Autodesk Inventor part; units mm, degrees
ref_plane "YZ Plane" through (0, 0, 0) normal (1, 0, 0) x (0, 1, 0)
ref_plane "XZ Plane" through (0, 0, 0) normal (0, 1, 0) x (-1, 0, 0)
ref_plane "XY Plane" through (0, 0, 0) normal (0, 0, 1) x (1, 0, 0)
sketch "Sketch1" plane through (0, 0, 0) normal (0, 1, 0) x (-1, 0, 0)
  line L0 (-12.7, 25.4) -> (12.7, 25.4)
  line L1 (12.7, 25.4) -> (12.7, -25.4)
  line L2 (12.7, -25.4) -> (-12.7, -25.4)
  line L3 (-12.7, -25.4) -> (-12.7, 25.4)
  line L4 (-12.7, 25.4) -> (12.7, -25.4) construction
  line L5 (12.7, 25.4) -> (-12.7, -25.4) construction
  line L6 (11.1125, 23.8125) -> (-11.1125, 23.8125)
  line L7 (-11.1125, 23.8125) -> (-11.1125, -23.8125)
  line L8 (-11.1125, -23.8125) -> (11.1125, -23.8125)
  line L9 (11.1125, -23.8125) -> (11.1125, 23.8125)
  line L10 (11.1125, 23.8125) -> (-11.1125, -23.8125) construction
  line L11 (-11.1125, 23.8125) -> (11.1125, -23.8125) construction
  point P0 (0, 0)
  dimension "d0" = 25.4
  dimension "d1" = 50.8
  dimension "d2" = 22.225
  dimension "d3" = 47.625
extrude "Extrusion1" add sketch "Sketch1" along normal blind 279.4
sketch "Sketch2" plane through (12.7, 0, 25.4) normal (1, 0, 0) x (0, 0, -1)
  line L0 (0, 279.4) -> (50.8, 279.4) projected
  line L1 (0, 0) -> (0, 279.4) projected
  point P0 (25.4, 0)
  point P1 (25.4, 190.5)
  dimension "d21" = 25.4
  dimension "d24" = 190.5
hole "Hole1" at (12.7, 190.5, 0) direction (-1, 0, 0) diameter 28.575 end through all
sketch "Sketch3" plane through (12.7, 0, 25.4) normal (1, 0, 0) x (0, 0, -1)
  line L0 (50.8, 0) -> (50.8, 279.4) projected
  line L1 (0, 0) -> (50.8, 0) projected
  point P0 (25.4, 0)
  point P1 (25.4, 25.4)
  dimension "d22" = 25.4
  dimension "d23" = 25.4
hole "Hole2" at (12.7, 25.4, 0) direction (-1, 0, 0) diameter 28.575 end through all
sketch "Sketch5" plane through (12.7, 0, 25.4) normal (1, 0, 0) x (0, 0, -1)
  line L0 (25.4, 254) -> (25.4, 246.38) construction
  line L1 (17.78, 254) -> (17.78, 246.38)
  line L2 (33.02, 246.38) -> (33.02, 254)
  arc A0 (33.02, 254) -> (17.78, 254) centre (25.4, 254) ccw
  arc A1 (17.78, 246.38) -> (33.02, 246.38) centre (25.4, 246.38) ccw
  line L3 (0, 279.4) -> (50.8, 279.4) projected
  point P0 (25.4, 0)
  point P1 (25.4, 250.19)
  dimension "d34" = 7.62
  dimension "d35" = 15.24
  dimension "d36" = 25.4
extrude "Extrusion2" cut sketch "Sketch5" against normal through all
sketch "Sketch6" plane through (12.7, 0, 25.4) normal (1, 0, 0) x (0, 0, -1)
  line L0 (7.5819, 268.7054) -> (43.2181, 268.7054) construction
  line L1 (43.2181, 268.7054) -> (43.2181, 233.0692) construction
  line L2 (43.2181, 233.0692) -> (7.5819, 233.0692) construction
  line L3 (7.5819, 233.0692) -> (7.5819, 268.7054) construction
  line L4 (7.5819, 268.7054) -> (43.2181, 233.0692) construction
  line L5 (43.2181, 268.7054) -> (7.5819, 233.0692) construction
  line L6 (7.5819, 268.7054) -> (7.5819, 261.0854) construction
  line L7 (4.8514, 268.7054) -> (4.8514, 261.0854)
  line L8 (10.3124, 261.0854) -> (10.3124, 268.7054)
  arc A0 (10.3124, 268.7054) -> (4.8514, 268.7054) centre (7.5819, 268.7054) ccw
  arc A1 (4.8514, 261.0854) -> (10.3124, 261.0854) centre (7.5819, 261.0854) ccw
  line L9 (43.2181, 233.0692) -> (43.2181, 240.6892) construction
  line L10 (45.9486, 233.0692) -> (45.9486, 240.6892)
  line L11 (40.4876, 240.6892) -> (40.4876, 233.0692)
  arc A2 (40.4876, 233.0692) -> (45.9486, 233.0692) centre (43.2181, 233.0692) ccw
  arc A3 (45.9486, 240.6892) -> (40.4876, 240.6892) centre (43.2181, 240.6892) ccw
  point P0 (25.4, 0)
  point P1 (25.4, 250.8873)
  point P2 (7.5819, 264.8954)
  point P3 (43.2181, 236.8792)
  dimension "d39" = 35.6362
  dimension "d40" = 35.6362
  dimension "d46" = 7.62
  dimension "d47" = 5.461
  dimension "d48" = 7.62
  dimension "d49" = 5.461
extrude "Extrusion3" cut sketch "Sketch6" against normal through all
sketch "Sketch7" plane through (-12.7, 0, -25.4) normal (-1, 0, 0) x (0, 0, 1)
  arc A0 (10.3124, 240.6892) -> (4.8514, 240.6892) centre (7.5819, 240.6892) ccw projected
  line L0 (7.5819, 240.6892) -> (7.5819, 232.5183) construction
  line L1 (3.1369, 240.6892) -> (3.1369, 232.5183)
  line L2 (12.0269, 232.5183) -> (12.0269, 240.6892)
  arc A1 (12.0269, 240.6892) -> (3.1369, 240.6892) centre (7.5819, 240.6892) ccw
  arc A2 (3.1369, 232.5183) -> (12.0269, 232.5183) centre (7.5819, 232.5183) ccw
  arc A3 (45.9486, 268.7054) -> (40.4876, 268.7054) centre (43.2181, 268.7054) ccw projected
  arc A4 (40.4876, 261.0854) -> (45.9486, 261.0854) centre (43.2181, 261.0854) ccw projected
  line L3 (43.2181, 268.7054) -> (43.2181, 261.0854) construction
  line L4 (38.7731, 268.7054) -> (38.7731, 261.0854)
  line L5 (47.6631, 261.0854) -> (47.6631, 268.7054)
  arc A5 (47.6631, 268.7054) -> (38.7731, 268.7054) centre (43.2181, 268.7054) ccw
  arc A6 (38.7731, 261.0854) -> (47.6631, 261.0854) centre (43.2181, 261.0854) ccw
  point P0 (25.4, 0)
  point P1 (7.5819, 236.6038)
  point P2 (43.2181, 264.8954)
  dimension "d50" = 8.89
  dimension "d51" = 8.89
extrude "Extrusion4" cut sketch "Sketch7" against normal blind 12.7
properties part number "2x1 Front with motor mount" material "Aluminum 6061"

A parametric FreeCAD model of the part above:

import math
import FreeCAD as App
import Part
import Sketcher

V = App.Vector
Q = App.Units.Quantity


def add_polygon(sketch, points):
    """Adds a closed chain of lines whose ends are joined by coincident constraints."""
    first, n = sketch.GeometryCount, len(points)
    for a, b in zip(points, points[1:] + points[:1]):
        sketch.addGeometry(Part.LineSegment(App.Vector(*a, 0), App.Vector(*b, 0)), False)
    for i in range(n):
        sketch.addConstraint(Sketcher.Constraint("Coincident", first + i, 2, first + (i + 1) % n, 1))

doc = App.newDocument("Part")
body = doc.addObject("PartDesign::Body", "Body")

sketch1 = body.newObject("Sketcher::SketchObject", "Sketch")
sketch1.AttachmentSupport = (doc.getObject("XZ_Plane"), [""])
sketch1.MapMode = "FlatFace"
add_polygon(sketch1, [(-12.7, 25.4), (12.7, 25.4), (12.7, -25.4), (-12.7, -25.4)])
add_polygon(sketch1, [(11.1125, 23.8125), (-11.1125, 23.8125), (-11.1125, -23.8125), (11.1125, -23.8125)])
sketch1.addConstraint(Sketcher.Constraint("Horizontal", 0))
sketch1.addConstraint(Sketcher.Constraint("Vertical", 1))
sketch1.addConstraint(Sketcher.Constraint("Horizontal", 2))
sketch1.addConstraint(Sketcher.Constraint("Vertical", 3))
sketch1.addConstraint(Sketcher.Constraint("Horizontal", 4))
sketch1.addConstraint(Sketcher.Constraint("Vertical", 5))
sketch1.addConstraint(Sketcher.Constraint("Horizontal", 6))
sketch1.addConstraint(Sketcher.Constraint("Vertical", 7))
sketch1.addConstraint(Sketcher.Constraint("Symmetric", 0, 2, 2, 2, -1, 1))
sketch1.addConstraint(Sketcher.Constraint("Symmetric", 4, 2, 6, 2, -1, 1))
sketch1.addConstraint(Sketcher.Constraint("DistanceX", 0, 1, 0, 2, Q("1 in")))
sketch1.addConstraint(Sketcher.Constraint("DistanceY", 1, 2, 1, 1, Q("2 in")))
sketch1.addConstraint(Sketcher.Constraint("DistanceX", 4, 2, 4, 1, Q("0.875 in")))
sketch1.addConstraint(Sketcher.Constraint("DistanceY", 5, 2, 5, 1, Q("1.875 in")))
pad1 = body.newObject("PartDesign::Pad", "Pad")
pad1.Profile = sketch1
pad1.Length = Q("11 in")
pad1.Reversed = True

sketch2 = body.newObject("Sketcher::SketchObject", "Sketch001")
sketch2.AttachmentSupport = (doc.getObject("YZ_Plane"), [""])
sketch2.MapMode = "FlatFace"
sketch2.AttachmentOffset = App.Placement(V(0, 0, 0.5 * 25.4), App.Rotation())
sketch2.addGeometry(Part.Circle(V(190.5, 0, 0), V(0, 0, 1), 14.2875), False)
sketch2.addConstraint(Sketcher.Constraint("PointOnObject", 0, 3, -1))
sketch2.addConstraint(Sketcher.Constraint("Diameter", 0, Q("1.125 in")))
sketch2.addConstraint(Sketcher.Constraint("DistanceX", -1, 1, 0, 3, Q("7.5 in")))
doc.recompute()
hole = body.newObject("PartDesign::Hole", "Hole")
hole.Profile = sketch2
hole.ThreadType = "None"
hole.Diameter = Q("1.125 in")
hole.DepthType = "ThroughAll"

sketch3 = body.newObject("Sketcher::SketchObject", "Sketch002")
sketch3.AttachmentSupport = (doc.getObject("YZ_Plane"), [""])
sketch3.MapMode = "FlatFace"
sketch3.AttachmentOffset = App.Placement(V(0, 0, 0.5 * 25.4), App.Rotation())
sketch3.addGeometry(Part.Circle(V(25.4, 0, 0), V(0, 0, 1), 14.2875), False)
sketch3.addConstraint(Sketcher.Constraint("PointOnObject", 0, 3, -1))
sketch3.addConstraint(Sketcher.Constraint("Diameter", 0, Q("1.125 in")))
sketch3.addConstraint(Sketcher.Constraint("DistanceX", -1, 1, 0, 3, Q("1 in")))
doc.recompute()
hole2 = body.newObject("PartDesign::Hole", "Hole001")
hole2.Profile = sketch3
hole2.ThreadType = "None"
hole2.Diameter = Q("1.125 in")
hole2.DepthType = "ThroughAll"

sketch4 = body.newObject("Sketcher::SketchObject", "Sketch003")
sketch4.AttachmentSupport = (doc.getObject("YZ_Plane"), [""])
sketch4.MapMode = "FlatFace"
sketch4.AttachmentOffset = App.Placement(V(0, 0, 0.5 * 25.4), App.Rotation())
sketch4.addGeometry(Part.ArcOfCircle(Part.Circle(V(254, 0, 0), V(0, 0, 1), 7.62), math.radians(-90), math.radians(90)), False)
sketch4.addGeometry(Part.LineSegment(V(254, 7.62, 0), V(246.38, 7.62, 0)), False)
sketch4.addGeometry(Part.ArcOfCircle(Part.Circle(V(246.38, 0, 0), V(0, 0, 1), 7.62), math.radians(90), math.radians(270)), False)
sketch4.addGeometry(Part.LineSegment(V(246.38, -7.62, 0), V(254, -7.62, 0)), False)
sketch4.addConstraint(Sketcher.Constraint("Tangent", 0, 2, 1, 1))
sketch4.addConstraint(Sketcher.Constraint("Tangent", 1, 2, 2, 1))
sketch4.addConstraint(Sketcher.Constraint("Tangent", 2, 2, 3, 1))
sketch4.addConstraint(Sketcher.Constraint("Tangent", 3, 2, 0, 1))
sketch4.addConstraint(Sketcher.Constraint("Horizontal", 1))
sketch4.addConstraint(Sketcher.Constraint("Horizontal", 3))
sketch4.addConstraint(Sketcher.Constraint("PointOnObject", 0, 3, -1))
sketch4.addConstraint(Sketcher.Constraint("Radius", 0, Q("0.3 in")))
sketch4.addConstraint(Sketcher.Constraint("DistanceX", 1, 2, 1, 1, Q("0.3 in")))
sketch4.addConstraint(Sketcher.Constraint("DistanceX", -1, 1, 0, 3, Q("10 in")))
pocket1 = body.newObject("PartDesign::Pocket", "Pocket")
pocket1.Profile = sketch4
pocket1.Type = "ThroughAll"

sketch5 = body.newObject("Sketcher::SketchObject", "Sketch004")
sketch5.AttachmentSupport = (doc.getObject("YZ_Plane"), [""])
sketch5.MapMode = "FlatFace"
sketch5.AttachmentOffset = App.Placement(V(0, 0, 0.5 * 25.4), App.Rotation())
sketch5.addGeometry(Part.ArcOfCircle(Part.Circle(V(268.7054, 17.8181, 0), V(0, 0, 1), 2.7305), math.radians(-90), math.radians(90)), False)
sketch5.addGeometry(Part.LineSegment(V(268.7054, 20.5486, 0), V(261.0854, 20.5486, 0)), False)
sketch5.addGeometry(Part.ArcOfCircle(Part.Circle(V(261.0854, 17.8181, 0), V(0, 0, 1), 2.7305), math.radians(90), math.radians(270)), False)
sketch5.addGeometry(Part.LineSegment(V(261.0854, 15.0876, 0), V(268.7054, 15.0876, 0)), False)
sketch5.addGeometry(Part.ArcOfCircle(Part.Circle(V(233.0692, -17.8181, 0), V(0, 0, 1), 2.7305), math.radians(90), math.radians(270)), False)
sketch5.addGeometry(Part.LineSegment(V(233.0692, -20.5486, 0), V(240.6892, -20.5486, 0)), False)
sketch5.addGeometry(Part.ArcOfCircle(Part.Circle(V(240.6892, -17.8181, 0), V(0, 0, 1), 2.7305), math.radians(-90), math.radians(90)), False)
sketch5.addGeometry(Part.LineSegment(V(240.6892, -15.0876, 0), V(233.0692, -15.0876, 0)), False)
sketch5.addConstraint(Sketcher.Constraint("Tangent", 0, 2, 1, 1))
sketch5.addConstraint(Sketcher.Constraint("Tangent", 1, 2, 2, 1))
sketch5.addConstraint(Sketcher.Constraint("Tangent", 2, 2, 3, 1))
sketch5.addConstraint(Sketcher.Constraint("Tangent", 3, 2, 0, 1))
sketch5.addConstraint(Sketcher.Constraint("Tangent", 4, 2, 5, 1))
sketch5.addConstraint(Sketcher.Constraint("Tangent", 5, 2, 6, 1))
sketch5.addConstraint(Sketcher.Constraint("Tangent", 6, 2, 7, 1))
sketch5.addConstraint(Sketcher.Constraint("Tangent", 7, 2, 4, 1))
sketch5.addConstraint(Sketcher.Constraint("Horizontal", 1))
sketch5.addConstraint(Sketcher.Constraint("Horizontal", 3))
sketch5.addConstraint(Sketcher.Constraint("Horizontal", 5))
sketch5.addConstraint(Sketcher.Constraint("Horizontal", 7))
sketch5.addConstraint(Sketcher.Constraint("Equal", 2, 4))
sketch5.addConstraint(Sketcher.Constraint("Equal", 3, 5))
sketch5.addConstraint(Sketcher.Constraint("DistanceX", 1, 2, 1, 1, Q("0.3 in")))
sketch5.addConstraint(Sketcher.Constraint("Radius", 0, Q("0.1075 in")))
sketch5.addConstraint(Sketcher.Constraint("DistanceY", 4, 3, 2, 3, Q("1.403 in")))
sketch5.addConstraint(Sketcher.Constraint("DistanceX", 4, 3, 0, 3, Q("1.403 in")))
sketch5.addConstraint(Sketcher.Constraint("DistanceY", -1, 1, 0, 2, Q("0.809 in")))
sketch5.addConstraint(Sketcher.Constraint("DistanceX", -1, 1, 0, 3, 268.7054))
pocket2 = body.newObject("PartDesign::Pocket", "Pocket001")
pocket2.Profile = sketch5
pocket2.Type = "ThroughAll"

sketch6 = body.newObject("Sketcher::SketchObject", "Sketch005")
sketch6.AttachmentSupport = (doc.getObject("YZ_Plane"), [""])
sketch6.MapMode = "FlatFace"
sketch6.AttachmentOffset = App.Placement(V(0, 0, -0.5 * 25.4), App.Rotation())
sketch6.addGeometry(Part.ArcOfCircle(Part.Circle(V(240.6892, -17.8181, 0), V(0, 0, 1), 4.445), math.radians(-90), math.radians(90)), False)
sketch6.addGeometry(Part.LineSegment(V(240.6892, -22.2631, 0), V(232.5183, -22.2631, 0)), False)
sketch6.addGeometry(Part.ArcOfCircle(Part.Circle(V(232.5183, -17.8181, 0), V(0, 0, 1), 4.445), math.radians(90), math.radians(270)), False)
sketch6.addGeometry(Part.LineSegment(V(232.5183, -13.3731, 0), V(240.6892, -13.3731, 0)), False)
sketch6.addGeometry(Part.ArcOfCircle(Part.Circle(V(268.7054, 17.8181, 0), V(0, 0, 1), 4.445), math.radians(-90), math.radians(90)), False)
sketch6.addGeometry(Part.LineSegment(V(268.7054, 13.3731, 0), V(261.0854, 13.3731, 0)), False)
sketch6.addGeometry(Part.ArcOfCircle(Part.Circle(V(261.0854, 17.8181, 0), V(0, 0, 1), 4.445), math.radians(90), math.radians(270)), False)
sketch6.addGeometry(Part.LineSegment(V(261.0854, 22.2631, 0), V(268.7054, 22.2631, 0)), False)
sketch6.addConstraint(Sketcher.Constraint("Tangent", 0, 1, 1, 1))
sketch6.addConstraint(Sketcher.Constraint("Tangent", 1, 2, 2, 2))
sketch6.addConstraint(Sketcher.Constraint("Tangent", 2, 1, 3, 1))
sketch6.addConstraint(Sketcher.Constraint("Tangent", 3, 2, 0, 2))
sketch6.addConstraint(Sketcher.Constraint("Tangent", 4, 1, 5, 1))
sketch6.addConstraint(Sketcher.Constraint("Tangent", 5, 2, 6, 2))
sketch6.addConstraint(Sketcher.Constraint("Tangent", 6, 1, 7, 1))
sketch6.addConstraint(Sketcher.Constraint("Tangent", 7, 2, 4, 2))
sketch6.addConstraint(Sketcher.Constraint("Horizontal", 1))
sketch6.addConstraint(Sketcher.Constraint("Horizontal", 3))
sketch6.addConstraint(Sketcher.Constraint("Horizontal", 5))
sketch6.addConstraint(Sketcher.Constraint("Horizontal", 7))
sketch6.addConstraint(Sketcher.Constraint("Equal", 2, 4))
sketch6.addConstraint(Sketcher.Constraint("Radius", 0, Q("0.175 in")))
sketch6.addConstraint(Sketcher.Constraint("DistanceX", 5, 2, 5, 1, Q("0.3 in")))
sketch6.addConstraint(Sketcher.Constraint("DistanceX", 1, 2, 1, 1, Q("0.3217 in")))
sketch6.addConstraint(Sketcher.Constraint("DistanceX", 0, 3, 4, 3, Q("1.103 in")))
sketch6.addConstraint(Sketcher.Constraint("DistanceY", 0, 3, 4, 3, Q("1.403 in")))
sketch6.addConstraint(Sketcher.Constraint("DistanceY", 0, 3, -1, 1, Q("0.7015 in")))
sketch6.addConstraint(Sketcher.Constraint("DistanceX", -1, 1, 0, 3, 240.6892))
pocket3 = body.newObject("PartDesign::Pocket", "Pocket002")
pocket3.Profile = sketch6
pocket3.Length = Q("0.5 in")
pocket3.Reversed = True

doc.recompute()
